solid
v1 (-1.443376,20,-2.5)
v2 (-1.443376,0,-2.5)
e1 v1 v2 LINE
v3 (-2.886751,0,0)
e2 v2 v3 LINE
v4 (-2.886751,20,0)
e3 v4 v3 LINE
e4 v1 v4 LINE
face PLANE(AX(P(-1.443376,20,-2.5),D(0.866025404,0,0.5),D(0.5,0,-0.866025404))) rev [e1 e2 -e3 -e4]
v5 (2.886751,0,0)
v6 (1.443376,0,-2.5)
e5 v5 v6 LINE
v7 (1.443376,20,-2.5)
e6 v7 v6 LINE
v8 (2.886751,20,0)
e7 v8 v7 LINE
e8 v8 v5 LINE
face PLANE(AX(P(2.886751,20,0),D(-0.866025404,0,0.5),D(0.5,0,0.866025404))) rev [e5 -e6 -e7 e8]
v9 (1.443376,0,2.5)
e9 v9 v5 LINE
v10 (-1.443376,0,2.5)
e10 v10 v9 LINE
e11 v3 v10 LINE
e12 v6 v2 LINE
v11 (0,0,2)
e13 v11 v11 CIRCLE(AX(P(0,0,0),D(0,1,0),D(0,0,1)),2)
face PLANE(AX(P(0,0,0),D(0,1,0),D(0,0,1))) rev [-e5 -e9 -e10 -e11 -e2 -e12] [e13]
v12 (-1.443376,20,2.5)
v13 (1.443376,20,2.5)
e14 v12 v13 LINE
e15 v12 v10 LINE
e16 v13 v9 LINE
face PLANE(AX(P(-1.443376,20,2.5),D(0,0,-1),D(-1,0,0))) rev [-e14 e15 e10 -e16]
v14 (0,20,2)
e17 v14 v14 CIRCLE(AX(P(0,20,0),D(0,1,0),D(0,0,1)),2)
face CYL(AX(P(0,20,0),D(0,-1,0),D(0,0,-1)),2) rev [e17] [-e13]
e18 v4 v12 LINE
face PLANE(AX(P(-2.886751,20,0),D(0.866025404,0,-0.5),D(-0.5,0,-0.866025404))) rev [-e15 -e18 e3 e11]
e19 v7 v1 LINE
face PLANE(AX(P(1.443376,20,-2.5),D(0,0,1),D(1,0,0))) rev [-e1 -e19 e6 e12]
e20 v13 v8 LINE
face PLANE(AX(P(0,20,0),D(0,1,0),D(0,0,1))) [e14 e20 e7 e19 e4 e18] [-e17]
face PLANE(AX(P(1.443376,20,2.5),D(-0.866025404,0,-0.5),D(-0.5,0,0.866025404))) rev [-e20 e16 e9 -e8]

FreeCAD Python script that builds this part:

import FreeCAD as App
import Part
import Sketcher

V = App.Vector
Q = App.Units.Quantity


def add_polygon(sketch, points):
    """Adds a closed chain of lines whose ends are joined by coincident constraints."""
    first, n = sketch.GeometryCount, len(points)
    for a, b in zip(points, points[1:] + points[:1]):
        sketch.addGeometry(Part.LineSegment(App.Vector(*a, 0), App.Vector(*b, 0)), False)
    for i in range(n):
        sketch.addConstraint(Sketcher.Constraint("Coincident", first + i, 2, first + (i + 1) % n, 1))

doc = App.newDocument("Part")
body = doc.addObject("PartDesign::Body", "Body")

sketch1 = body.newObject("Sketcher::SketchObject", "Sketch")
sketch1.AttachmentSupport = (doc.getObject("XZ_Plane"), [""])
sketch1.MapMode = "FlatFace"
add_polygon(sketch1, [(1.4, -2.5), (-1.4, -2.5), (-2.9, 0), (-1.4, 2.5), (1.4, 2.5), (2.9, 0)])
sketch1.addGeometry(Part.Circle(V(0, 0, 0), V(0, 0, 1), 2), False)
sketch1.addConstraint(Sketcher.Constraint("Horizontal", 0))
sketch1.addConstraint(Sketcher.Constraint("Horizontal", 3))
sketch1.addConstraint(Sketcher.Constraint("Coincident", 6, 3, -1, 1))
sketch1.addConstraint(Sketcher.Constraint("Symmetric", 0, 2, 3, 2, -1, 1))
sketch1.addConstraint(Sketcher.Constraint("Symmetric", 1, 2, 4, 2, -1, 1))
sketch1.addConstraint(Sketcher.Constraint("PointOnObject", 1, 2, -1))
sketch1.addConstraint(Sketcher.Constraint("Parallel", 2, 5))
sketch1.addConstraint(Sketcher.Constraint("Vertical", 0, 2, 2, 2))
sketch1.addConstraint(Sketcher.Constraint("Diameter", 6, Q("4 mm")))
sketch1.addConstraint(Sketcher.Constraint("Angle", 1, Q("120 deg")))
sketch1.addConstraint(Sketcher.Constraint("DistanceY", 0, 2, 2, 2, Q("5 mm")))
sketch1.addConstraint(Sketcher.Constraint("DistanceX", 0, 2, 0, 1, Q("2.886751 mm")))
pad1 = body.newObject("PartDesign::Pad", "Pad")
pad1.Profile = sketch1
pad1.Length = 20
pad1.Reversed = True

doc.recompute()
